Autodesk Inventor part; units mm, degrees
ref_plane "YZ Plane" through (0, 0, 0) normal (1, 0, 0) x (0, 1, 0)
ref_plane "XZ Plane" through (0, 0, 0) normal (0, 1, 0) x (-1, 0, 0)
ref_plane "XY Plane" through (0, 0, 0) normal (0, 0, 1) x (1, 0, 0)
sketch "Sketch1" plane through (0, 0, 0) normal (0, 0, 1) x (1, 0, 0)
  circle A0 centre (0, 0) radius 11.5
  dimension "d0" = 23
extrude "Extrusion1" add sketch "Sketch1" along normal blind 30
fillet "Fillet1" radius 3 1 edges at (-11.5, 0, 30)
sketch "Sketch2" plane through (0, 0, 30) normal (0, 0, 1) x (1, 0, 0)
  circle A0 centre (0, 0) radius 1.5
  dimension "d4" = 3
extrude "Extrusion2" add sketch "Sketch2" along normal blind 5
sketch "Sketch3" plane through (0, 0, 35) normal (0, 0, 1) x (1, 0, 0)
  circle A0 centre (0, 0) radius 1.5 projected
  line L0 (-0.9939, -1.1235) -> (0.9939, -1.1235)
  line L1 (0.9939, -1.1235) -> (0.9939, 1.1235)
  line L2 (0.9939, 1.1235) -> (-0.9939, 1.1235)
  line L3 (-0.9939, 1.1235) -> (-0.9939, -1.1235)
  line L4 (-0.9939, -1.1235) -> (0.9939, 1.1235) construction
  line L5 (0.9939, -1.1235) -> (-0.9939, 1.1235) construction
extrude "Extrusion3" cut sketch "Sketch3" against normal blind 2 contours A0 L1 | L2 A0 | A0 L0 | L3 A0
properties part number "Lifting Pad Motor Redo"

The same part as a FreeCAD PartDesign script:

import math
import FreeCAD as App
import Part
import Sketcher

V = App.Vector


def edges_at(feature, points):
    """Names of the edges that pass closest to the given points."""
    edges = feature.Shape.Edges
    near = lambda p: min(range(len(edges)), key=lambda i: edges[i].distToShape(Part.Vertex(*p))[0])
    return sorted({f"Edge{near(p) + 1}" for p in points})

doc = App.newDocument("Part")
body = doc.addObject("PartDesign::Body", "Body")

# Sketch on XY plane
sketch1 = body.newObject("Sketcher::SketchObject", "Sketch")
sketch1.AttachmentSupport = (doc.getObject("XY_Plane"), [""])
sketch1.MapMode = "FlatFace"
sketch1.addGeometry(Part.Circle(V(0, 0, 0), V(0, 0, 1), 12), False)
sketch1.addConstraint(Sketcher.Constraint("Coincident", 0, 3, -1, 1))
sketch1.addConstraint(Sketcher.Constraint("Diameter", 0, 23.0))
pad1 = body.newObject("PartDesign::Pad", "Pad")
pad1.Profile = sketch1
pad1.Length = 30
doc.recompute()

fillet = body.newObject("PartDesign::Fillet", "Fillet")
fillet.Base = (pad1, edges_at(pad1, [(-11.5, 0, 30)]))
fillet.Radius = 3

# Sketch on XY plane
sketch2 = body.newObject("Sketcher::SketchObject", "Sketch001")
sketch2.AttachmentSupport = (doc.getObject("XY_Plane"), [""])
sketch2.MapMode = "FlatFace"
sketch2.AttachmentOffset = App.Placement(V(0, 0, 30), App.Rotation())
sketch2.addGeometry(Part.Circle(V(0, 0, 0), V(0, 0, 1), 1.5), False)
sketch2.addConstraint(Sketcher.Constraint("Coincident", 0, 3, -1, 1))
sketch2.addConstraint(Sketcher.Constraint("Diameter", 0, 3.0))
pad2 = body.newObject("PartDesign::Pad", "Pad001")
pad2.Profile = sketch2
pad2.Length = 5

# Sketch on XY plane
sketch3 = body.newObject("Sketcher::SketchObject", "Sketch002")
sketch3.AttachmentSupport = (doc.getObject("XY_Plane"), [""])
sketch3.MapMode = "FlatFace"
sketch3.AttachmentOffset = App.Placement(V(0, 0, 35), App.Rotation())
sketch3.addGeometry(Part.ArcOfCircle(Part.Circle(V(0, 0, 0), V(0, 0, 1), 1.5), math.radians(-49), math.radians(49)), False)
sketch3.addGeometry(Part.LineSegment(V(1, -1.1, 0), V(1, 1.1, 0)), False)
sketch3.addGeometry(Part.LineSegment(V(-1, 1.1, 0), V(1, 1.1, 0)), False)
sketch3.addGeometry(Part.ArcOfCircle(Part.Circle(V(0, 0, 0), V(0, 0, 1), 1.5), math.radians(49), math.radians(131)), False)
sketch3.addGeometry(Part.ArcOfCircle(Part.Circle(V(0, 0, 0), V(0, 0, 1), 1.5), math.radians(-131), math.radians(-49)), False)
sketch3.addGeometry(Part.LineSegment(V(-1, -1.1, 0), V(1, -1.1, 0)), False)
sketch3.addGeometry(Part.LineSegment(V(-1, -1.1, 0), V(-1, 1.1, 0)), False)
sketch3.addGeometry(Part.ArcOfCircle(Part.Circle(V(0, 0, 0), V(0, 0, 1), 1.5), math.radians(131), math.radians(229)), False)
sketch3.addConstraint(Sketcher.Constraint("Coincident", 0, 1, 1, 1))
sketch3.addConstraint(Sketcher.Constraint("Coincident", 1, 2, 0, 2))
sketch3.addConstraint(Sketcher.Constraint("Coincident", 2, 1, 3, 2))
sketch3.addConstraint(Sketcher.Constraint("Coincident", 3, 1, 2, 2))
sketch3.addConstraint(Sketcher.Constraint("Coincident", 4, 1, 5, 1))
sketch3.addConstraint(Sketcher.Constraint("Coincident", 5, 2, 4, 2))
sketch3.addConstraint(Sketcher.Constraint("Coincident", 6, 1, 7, 2))
sketch3.addConstraint(Sketcher.Constraint("Coincident", 7, 1, 6, 2))
sketch3.addConstraint(Sketcher.Constraint("Vertical", 1))
sketch3.addConstraint(Sketcher.Constraint("Horizontal", 2))
sketch3.addConstraint(Sketcher.Constraint("Horizontal", 5))
sketch3.addConstraint(Sketcher.Constraint("Vertical", 6))
sketch3.addConstraint(Sketcher.Constraint("Coincident", 0, 3, -1, 1))
sketch3.addConstraint(Sketcher.Constraint("Coincident", 3, 3, -1, 1))
sketch3.addConstraint(Sketcher.Constraint("Coincident", 4, 3, -1, 1))
sketch3.addConstraint(Sketcher.Constraint("Coincident", 7, 3, -1, 1))
sketch3.addConstraint(Sketcher.Constraint("Coincident", 3, 1, 1, 2))
sketch3.addConstraint(Sketcher.Constraint("Coincident", 5, 2, 0, 1))
sketch3.addConstraint(Sketcher.Constraint("Coincident", 6, 1, 4, 1))
sketch3.addConstraint(Sketcher.Constraint("Radius", 0, 1.5))
sketch3.addConstraint(Sketcher.Constraint("DistanceY", 1, 1, 1, 2, 2.247))
pocket1 = body.newObject("PartDesign::Pocket", "Pocket")
pocket1.Profile = sketch3
pocket1.Length = 2

doc.recompute()
